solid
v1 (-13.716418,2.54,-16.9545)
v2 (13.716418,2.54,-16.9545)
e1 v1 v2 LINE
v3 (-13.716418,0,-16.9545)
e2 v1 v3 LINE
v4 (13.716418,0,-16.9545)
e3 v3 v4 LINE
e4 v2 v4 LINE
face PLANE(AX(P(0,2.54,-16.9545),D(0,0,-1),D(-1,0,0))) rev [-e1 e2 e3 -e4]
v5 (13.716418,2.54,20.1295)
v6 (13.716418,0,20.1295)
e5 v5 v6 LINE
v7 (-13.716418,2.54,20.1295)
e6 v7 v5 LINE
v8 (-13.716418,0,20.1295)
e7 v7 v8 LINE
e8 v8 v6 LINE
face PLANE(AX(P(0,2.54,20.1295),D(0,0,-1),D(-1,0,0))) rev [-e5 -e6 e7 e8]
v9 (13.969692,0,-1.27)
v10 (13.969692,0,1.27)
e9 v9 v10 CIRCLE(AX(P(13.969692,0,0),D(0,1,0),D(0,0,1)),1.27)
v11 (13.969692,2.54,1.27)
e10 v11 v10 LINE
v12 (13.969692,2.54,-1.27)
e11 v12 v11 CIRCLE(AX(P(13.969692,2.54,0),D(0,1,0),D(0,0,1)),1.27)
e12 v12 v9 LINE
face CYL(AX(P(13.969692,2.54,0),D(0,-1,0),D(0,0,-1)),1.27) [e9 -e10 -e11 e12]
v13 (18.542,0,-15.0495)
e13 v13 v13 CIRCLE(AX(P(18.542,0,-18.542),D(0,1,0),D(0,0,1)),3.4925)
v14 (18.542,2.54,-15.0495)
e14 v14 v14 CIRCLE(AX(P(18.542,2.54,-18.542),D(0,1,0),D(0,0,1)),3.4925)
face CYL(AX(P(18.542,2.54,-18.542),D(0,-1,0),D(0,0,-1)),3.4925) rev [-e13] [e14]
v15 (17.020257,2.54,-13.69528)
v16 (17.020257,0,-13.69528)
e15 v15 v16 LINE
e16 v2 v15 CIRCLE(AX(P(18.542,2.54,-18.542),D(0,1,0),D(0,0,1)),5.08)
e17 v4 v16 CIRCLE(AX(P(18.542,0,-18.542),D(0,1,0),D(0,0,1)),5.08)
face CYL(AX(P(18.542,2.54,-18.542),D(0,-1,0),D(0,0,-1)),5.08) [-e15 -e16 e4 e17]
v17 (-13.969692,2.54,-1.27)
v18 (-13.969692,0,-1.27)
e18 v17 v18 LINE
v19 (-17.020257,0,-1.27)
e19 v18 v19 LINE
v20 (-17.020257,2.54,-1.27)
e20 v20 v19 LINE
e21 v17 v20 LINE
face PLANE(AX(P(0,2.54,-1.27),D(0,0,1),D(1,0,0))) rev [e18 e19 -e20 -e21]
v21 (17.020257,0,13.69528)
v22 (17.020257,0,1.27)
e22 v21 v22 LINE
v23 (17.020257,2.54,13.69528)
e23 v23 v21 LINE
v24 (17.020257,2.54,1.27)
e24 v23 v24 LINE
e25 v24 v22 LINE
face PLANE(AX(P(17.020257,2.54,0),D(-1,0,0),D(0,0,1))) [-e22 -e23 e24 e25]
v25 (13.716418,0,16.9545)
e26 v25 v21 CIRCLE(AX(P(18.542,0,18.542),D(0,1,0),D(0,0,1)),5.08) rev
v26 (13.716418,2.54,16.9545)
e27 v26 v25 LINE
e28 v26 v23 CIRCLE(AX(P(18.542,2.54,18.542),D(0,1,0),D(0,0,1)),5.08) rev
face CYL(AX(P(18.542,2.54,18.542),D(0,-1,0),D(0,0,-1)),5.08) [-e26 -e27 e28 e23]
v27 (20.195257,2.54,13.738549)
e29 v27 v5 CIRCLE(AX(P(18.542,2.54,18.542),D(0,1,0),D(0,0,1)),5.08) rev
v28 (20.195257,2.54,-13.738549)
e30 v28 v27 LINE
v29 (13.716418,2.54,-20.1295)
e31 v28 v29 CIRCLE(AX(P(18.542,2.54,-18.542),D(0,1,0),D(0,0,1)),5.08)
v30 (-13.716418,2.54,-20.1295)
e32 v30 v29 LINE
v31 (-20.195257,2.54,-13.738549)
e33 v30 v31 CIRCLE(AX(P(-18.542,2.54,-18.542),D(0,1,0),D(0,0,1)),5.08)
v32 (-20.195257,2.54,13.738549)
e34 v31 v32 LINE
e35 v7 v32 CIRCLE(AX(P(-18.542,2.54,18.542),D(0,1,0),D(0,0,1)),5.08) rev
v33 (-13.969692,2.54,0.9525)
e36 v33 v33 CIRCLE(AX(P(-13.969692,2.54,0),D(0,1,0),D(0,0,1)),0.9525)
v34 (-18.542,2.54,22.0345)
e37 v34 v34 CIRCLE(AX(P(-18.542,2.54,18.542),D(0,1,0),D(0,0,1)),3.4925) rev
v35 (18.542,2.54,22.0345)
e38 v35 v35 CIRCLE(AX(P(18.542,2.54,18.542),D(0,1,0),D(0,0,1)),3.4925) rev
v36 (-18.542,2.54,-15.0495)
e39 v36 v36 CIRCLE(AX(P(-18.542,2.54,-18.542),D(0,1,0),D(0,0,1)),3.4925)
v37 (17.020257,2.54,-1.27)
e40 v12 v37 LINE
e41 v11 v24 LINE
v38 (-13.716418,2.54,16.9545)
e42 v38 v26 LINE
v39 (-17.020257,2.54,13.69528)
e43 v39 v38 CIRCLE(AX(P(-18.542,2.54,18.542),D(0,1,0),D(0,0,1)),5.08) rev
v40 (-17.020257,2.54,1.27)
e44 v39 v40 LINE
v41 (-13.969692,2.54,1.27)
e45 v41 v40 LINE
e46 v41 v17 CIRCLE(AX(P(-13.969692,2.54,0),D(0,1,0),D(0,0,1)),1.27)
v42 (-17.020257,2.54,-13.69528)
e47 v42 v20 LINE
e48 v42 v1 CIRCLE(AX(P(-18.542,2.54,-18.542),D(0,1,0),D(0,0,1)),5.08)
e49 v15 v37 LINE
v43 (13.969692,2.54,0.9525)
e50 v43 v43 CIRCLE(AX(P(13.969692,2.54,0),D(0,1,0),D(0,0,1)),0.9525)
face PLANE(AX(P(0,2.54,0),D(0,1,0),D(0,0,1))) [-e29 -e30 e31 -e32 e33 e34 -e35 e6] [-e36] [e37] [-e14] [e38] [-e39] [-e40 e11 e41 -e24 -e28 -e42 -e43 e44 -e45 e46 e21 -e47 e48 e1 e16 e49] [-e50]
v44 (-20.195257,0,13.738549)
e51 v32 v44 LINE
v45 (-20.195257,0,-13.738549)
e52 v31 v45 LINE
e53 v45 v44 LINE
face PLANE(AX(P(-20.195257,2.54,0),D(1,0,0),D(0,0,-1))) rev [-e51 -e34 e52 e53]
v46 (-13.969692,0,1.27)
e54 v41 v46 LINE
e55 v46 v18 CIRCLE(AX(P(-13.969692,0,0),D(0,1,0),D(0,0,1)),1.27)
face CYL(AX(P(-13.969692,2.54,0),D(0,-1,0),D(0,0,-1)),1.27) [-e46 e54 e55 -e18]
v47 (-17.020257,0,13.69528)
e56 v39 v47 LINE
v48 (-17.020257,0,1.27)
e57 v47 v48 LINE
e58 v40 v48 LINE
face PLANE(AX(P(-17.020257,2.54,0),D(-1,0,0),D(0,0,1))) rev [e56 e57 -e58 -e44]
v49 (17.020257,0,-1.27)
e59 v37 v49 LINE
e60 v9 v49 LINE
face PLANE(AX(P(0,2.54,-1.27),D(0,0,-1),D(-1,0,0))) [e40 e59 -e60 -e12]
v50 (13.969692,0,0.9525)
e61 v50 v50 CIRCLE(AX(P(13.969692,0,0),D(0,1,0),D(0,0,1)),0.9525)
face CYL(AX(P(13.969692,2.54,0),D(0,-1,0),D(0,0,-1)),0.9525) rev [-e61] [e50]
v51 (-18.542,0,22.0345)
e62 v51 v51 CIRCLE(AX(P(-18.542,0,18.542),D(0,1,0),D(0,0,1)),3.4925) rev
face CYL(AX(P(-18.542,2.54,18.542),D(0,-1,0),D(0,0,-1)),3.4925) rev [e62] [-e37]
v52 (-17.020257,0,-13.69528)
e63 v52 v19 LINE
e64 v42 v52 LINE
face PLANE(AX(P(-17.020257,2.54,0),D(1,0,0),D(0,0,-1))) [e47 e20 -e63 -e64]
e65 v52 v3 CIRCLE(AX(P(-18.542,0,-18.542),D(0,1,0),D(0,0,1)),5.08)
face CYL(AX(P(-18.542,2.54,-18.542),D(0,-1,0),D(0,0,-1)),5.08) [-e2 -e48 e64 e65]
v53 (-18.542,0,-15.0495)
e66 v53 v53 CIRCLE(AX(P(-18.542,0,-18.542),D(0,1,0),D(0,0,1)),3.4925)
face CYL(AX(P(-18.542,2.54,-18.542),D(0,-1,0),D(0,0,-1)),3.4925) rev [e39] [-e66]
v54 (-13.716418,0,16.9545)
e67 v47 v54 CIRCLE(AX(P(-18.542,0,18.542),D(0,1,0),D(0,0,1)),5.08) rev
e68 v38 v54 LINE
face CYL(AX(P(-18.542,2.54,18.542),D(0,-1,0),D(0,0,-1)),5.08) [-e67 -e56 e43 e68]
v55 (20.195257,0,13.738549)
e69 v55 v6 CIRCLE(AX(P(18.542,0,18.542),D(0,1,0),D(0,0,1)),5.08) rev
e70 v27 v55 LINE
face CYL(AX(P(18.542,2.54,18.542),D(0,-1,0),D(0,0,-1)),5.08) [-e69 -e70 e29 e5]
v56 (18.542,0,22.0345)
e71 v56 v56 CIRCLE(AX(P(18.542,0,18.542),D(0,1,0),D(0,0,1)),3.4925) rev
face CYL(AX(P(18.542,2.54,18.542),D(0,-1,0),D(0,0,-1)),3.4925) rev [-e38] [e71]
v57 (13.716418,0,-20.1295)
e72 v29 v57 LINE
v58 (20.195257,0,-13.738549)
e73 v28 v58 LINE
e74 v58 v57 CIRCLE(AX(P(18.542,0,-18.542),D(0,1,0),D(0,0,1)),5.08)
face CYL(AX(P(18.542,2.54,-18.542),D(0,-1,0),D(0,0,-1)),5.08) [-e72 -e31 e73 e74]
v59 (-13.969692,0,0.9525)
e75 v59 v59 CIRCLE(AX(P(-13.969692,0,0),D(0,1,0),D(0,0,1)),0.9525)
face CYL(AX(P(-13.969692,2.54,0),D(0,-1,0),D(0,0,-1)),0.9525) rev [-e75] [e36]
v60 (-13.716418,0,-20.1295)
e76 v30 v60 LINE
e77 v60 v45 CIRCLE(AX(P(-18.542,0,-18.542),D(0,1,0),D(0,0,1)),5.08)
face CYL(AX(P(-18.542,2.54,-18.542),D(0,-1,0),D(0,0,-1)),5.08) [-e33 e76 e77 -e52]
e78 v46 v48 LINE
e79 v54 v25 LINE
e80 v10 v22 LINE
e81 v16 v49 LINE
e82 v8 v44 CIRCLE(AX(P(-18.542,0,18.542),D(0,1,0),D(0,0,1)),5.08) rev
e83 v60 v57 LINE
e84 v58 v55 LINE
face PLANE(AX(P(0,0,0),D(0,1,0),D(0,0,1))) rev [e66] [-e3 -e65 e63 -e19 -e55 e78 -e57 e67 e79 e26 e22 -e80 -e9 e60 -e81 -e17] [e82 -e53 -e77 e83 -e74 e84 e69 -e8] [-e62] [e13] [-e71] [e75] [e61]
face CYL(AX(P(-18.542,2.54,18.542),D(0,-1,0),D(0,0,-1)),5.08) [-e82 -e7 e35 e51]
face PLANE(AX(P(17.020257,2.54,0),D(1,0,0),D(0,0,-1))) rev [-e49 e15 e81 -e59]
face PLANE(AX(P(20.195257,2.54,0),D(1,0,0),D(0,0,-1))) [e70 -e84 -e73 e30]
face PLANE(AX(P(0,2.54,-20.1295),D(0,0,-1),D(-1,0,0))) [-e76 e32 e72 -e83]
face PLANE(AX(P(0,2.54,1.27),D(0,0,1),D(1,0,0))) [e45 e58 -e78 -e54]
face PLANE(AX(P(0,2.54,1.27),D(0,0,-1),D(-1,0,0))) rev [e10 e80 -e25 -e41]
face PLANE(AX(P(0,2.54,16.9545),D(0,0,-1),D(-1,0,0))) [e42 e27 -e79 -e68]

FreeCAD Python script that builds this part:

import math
import FreeCAD as App
import Part
import Sketcher
Q = App.Units.Quantity

doc = App.newDocument("Part")
params = doc.addObject("Spreadsheet::Sheet", "Params")
for row, (alias, value) in enumerate([
    ("sketch1_radius", "0.2 in"),
    ("sketch1_radius2", "0.05 in"),
    ("sketch1_diameter", "0.275 in"),
    ("sketch1_diameter2", "0.075 in"),
    ("pad1_length", "0.1 in"),
], start=1):
    params.set(f"A{row}", alias)
    params.set(f"B{row}", "=" + value)
    params.setAlias(f"B{row}", alias)

body = doc.addObject("PartDesign::Body", "Body")

sketch1 = body.newObject("Sketcher::SketchObject", "Sketch")
sketch1.AttachmentSupport = (doc.getObject("XZ_Plane"), [""])
sketch1.MapMode = "FlatFace"
sketch1.addGeometry(Part.LineSegment(App.Vector(-20.195257, -13.738549, 0), App.Vector(-20.195257, 13.738549, 0)), False)
sketch1.addGeometry(Part.ArcOfCircle(Part.Circle(App.Vector(-18.542, 18.542, 0), App.Vector(0, 0, 1), 5.08), math.radians(18.209957), math.radians(251.007502)), False)
sketch1.addGeometry(Part.LineSegment(App.Vector(-13.716418, 20.1295, 0), App.Vector(13.716418, 20.1295, 0)), False)
sketch1.addGeometry(Part.ArcOfCircle(Part.Circle(App.Vector(18.542, 18.542, 0), App.Vector(0, 0, 1), 5.08), math.radians(-71.007502), math.radians(161.790043)), False)
sketch1.addGeometry(Part.LineSegment(App.Vector(20.195257, 13.738549, 0), App.Vector(20.195257, -13.738549, 0)), False)
sketch1.addGeometry(Part.ArcOfCircle(Part.Circle(App.Vector(18.542, -18.542, 0), App.Vector(0, 0, 1), 5.08), math.radians(-161.790043), math.radians(71.007502)), False)
sketch1.addGeometry(Part.LineSegment(App.Vector(13.716418, -20.1295, 0), App.Vector(-13.716418, -20.1295, 0)), False)
sketch1.addGeometry(Part.ArcOfCircle(Part.Circle(App.Vector(-18.542, -18.542, 0), App.Vector(0, 0, 1), 5.08), math.radians(108.992498), math.radians(341.790043)), False)
sketch1.addGeometry(Part.Circle(App.Vector(-18.542, 18.542, 0), App.Vector(0, 0, 1), 3.4925), False)
sketch1.addGeometry(Part.Circle(App.Vector(18.542, 18.542, 0), App.Vector(0, 0, 1), 3.4925), False)
sketch1.addGeometry(Part.Circle(App.Vector(-13.969692, 0, 0), App.Vector(0, 0, 1), 0.9525), False)
sketch1.addGeometry(Part.Circle(App.Vector(-18.542, -18.542, 0), App.Vector(0, 0, 1), 3.4925), False)
sketch1.addGeometry(Part.LineSegment(App.Vector(-17.020257, -1.27, 0), App.Vector(-17.020257, -13.69528, 0)), False)
sketch1.addGeometry(Part.ArcOfCircle(Part.Circle(App.Vector(-18.542, -18.542, 0), App.Vector(0, 0, 1), 5.08), math.radians(18.209957), math.radians(72.569084)), False)
sketch1.addGeometry(Part.LineSegment(App.Vector(-13.716418, -16.9545, 0), App.Vector(13.716418, -16.9545, 0)), False)
sketch1.addGeometry(Part.ArcOfCircle(Part.Circle(App.Vector(18.542, -18.542, 0), App.Vector(0, 0, 1), 5.08), math.radians(107.430916), math.radians(161.790043)), False)
sketch1.addGeometry(Part.LineSegment(App.Vector(17.020257, -13.69528, 0), App.Vector(17.020257, -1.27, 0)), False)
sketch1.addGeometry(Part.LineSegment(App.Vector(17.020257, -1.27, 0), App.Vector(13.969692, -1.27, 0)), False)
sketch1.addGeometry(Part.ArcOfCircle(Part.Circle(App.Vector(13.969692, 0, 0), App.Vector(0, 0, 1), 1.27), math.radians(90), math.radians(270)), False)
sketch1.addGeometry(Part.LineSegment(App.Vector(13.969692, 1.27, 0), App.Vector(17.020257, 1.27, 0)), False)
sketch1.addGeometry(Part.LineSegment(App.Vector(17.020257, 1.27, 0), App.Vector(17.020257, 13.69528, 0)), False)
sketch1.addGeometry(Part.ArcOfCircle(Part.Circle(App.Vector(18.542, 18.542, 0), App.Vector(0, 0, 1), 5.08), math.radians(-161.790043), math.radians(-107.430916)), False)
sketch1.addGeometry(Part.LineSegment(App.Vector(13.716418, 16.9545, 0), App.Vector(-13.716418, 16.9545, 0)), False)
sketch1.addGeometry(Part.ArcOfCircle(Part.Circle(App.Vector(-18.542, 18.542, 0), App.Vector(0, 0, 1), 5.08), math.radians(-72.569084), math.radians(-18.209957)), False)
sketch1.addGeometry(Part.LineSegment(App.Vector(-17.020257, 13.69528, 0), App.Vector(-17.020257, 1.27, 0)), False)
sketch1.addGeometry(Part.LineSegment(App.Vector(-17.020257, 1.27, 0), App.Vector(-13.969692, 1.27, 0)), False)
sketch1.addGeometry(Part.ArcOfCircle(Part.Circle(App.Vector(-13.969692, 0, 0), App.Vector(0, 0, 1), 1.27), math.radians(-90), math.radians(90)), False)
sketch1.addGeometry(Part.LineSegment(App.Vector(-13.969692, -1.27, 0), App.Vector(-17.020257, -1.27, 0)), False)
sketch1.addGeometry(Part.Circle(App.Vector(13.969692, 0, 0), App.Vector(0, 0, 1), 0.9525), False)
sketch1.addGeometry(Part.Circle(App.Vector(18.542, -18.542, 0), App.Vector(0, 0, 1), 3.4925), False)
sketch1.addConstraint(Sketcher.Constraint("Coincident", 0, 2, 1, 2))
sketch1.addConstraint(Sketcher.Constraint("Coincident", 1, 1, 2, 1))
sketch1.addConstraint(Sketcher.Constraint("Coincident", 2, 2, 3, 2))
sketch1.addConstraint(Sketcher.Constraint("Coincident", 3, 1, 4, 1))
sketch1.addConstraint(Sketcher.Constraint("Coincident", 4, 2, 5, 2))
sketch1.addConstraint(Sketcher.Constraint("Coincident", 5, 1, 6, 1))
sketch1.addConstraint(Sketcher.Constraint("Coincident", 6, 2, 7, 2))
sketch1.addConstraint(Sketcher.Constraint("Coincident", 7, 1, 0, 1))
sketch1.addConstraint(Sketcher.Constraint("Coincident", 12, 2, 13, 2))
sketch1.addConstraint(Sketcher.Constraint("Coincident", 13, 1, 14, 1))
sketch1.addConstraint(Sketcher.Constraint("Coincident", 14, 2, 15, 2))
sketch1.addConstraint(Sketcher.Constraint("Coincident", 15, 1, 16, 1))
sketch1.addConstraint(Sketcher.Constraint("Coincident", 16, 2, 17, 1))
sketch1.addConstraint(Sketcher.Constraint("Tangent", 17, 2, 18, 2))
sketch1.addConstraint(Sketcher.Constraint("Tangent", 18, 1, 19, 1))
sketch1.addConstraint(Sketcher.Constraint("Coincident", 19, 2, 20, 1))
sketch1.addConstraint(Sketcher.Constraint("Coincident", 20, 2, 21, 2))
sketch1.addConstraint(Sketcher.Constraint("Coincident", 21, 1, 22, 1))
sketch1.addConstraint(Sketcher.Constraint("Coincident", 22, 2, 23, 2))
sketch1.addConstraint(Sketcher.Constraint("Coincident", 23, 1, 24, 1))
sketch1.addConstraint(Sketcher.Constraint("Coincident", 24, 2, 25, 1))
sketch1.addConstraint(Sketcher.Constraint("Tangent", 25, 2, 26, 2))
sketch1.addConstraint(Sketcher.Constraint("Tangent", 26, 1, 27, 1))
sketch1.addConstraint(Sketcher.Constraint("Coincident", 27, 2, 12, 1))
sketch1.addConstraint(Sketcher.Constraint("Vertical", 0))
sketch1.addConstraint(Sketcher.Constraint("Horizontal", 2))
sketch1.addConstraint(Sketcher.Constraint("Vertical", 4))
sketch1.addConstraint(Sketcher.Constraint("Horizontal", 6))
sketch1.addConstraint(Sketcher.Constraint("Vertical", 12))
sketch1.addConstraint(Sketcher.Constraint("Horizontal", 14))
sketch1.addConstraint(Sketcher.Constraint("Vertical", 16))
sketch1.addConstraint(Sketcher.Constraint("Horizontal", 17))
sketch1.addConstraint(Sketcher.Constraint("Horizontal", 19))
sketch1.addConstraint(Sketcher.Constraint("Vertical", 20))
sketch1.addConstraint(Sketcher.Constraint("Horizontal", 22))
sketch1.addConstraint(Sketcher.Constraint("Vertical", 24))
sketch1.addConstraint(Sketcher.Constraint("Horizontal", 25))
sketch1.addConstraint(Sketcher.Constraint("Horizontal", 27))
sketch1.addConstraint(Sketcher.Constraint("Coincident", 8, 3, 1, 3))
sketch1.addConstraint(Sketcher.Constraint("Coincident", 9, 3, 3, 3))
sketch1.addConstraint(Sketcher.Constraint("Coincident", 11, 3, 7, 3))
sketch1.addConstraint(Sketcher.Constraint("Coincident", 13, 3, 7, 3))
sketch1.addConstraint(Sketcher.Constraint("Coincident", 15, 3, 5, 3))
sketch1.addConstraint(Sketcher.Constraint("Coincident", 21, 3, 3, 3))
sketch1.addConstraint(Sketcher.Constraint("Coincident", 23, 3, 1, 3))
sketch1.addConstraint(Sketcher.Constraint("Coincident", 26, 3, 10, 3))
sketch1.addConstraint(Sketcher.Constraint("Coincident", 28, 3, 18, 3))
sketch1.addConstraint(Sketcher.Constraint("Coincident", 29, 3, 5, 3))
sketch1.addConstraint(Sketcher.Constraint("Equal", 1, 3))
sketch1.addConstraint(Sketcher.Constraint("Equal", 3, 5))
sketch1.addConstraint(Sketcher.Constraint("Equal", 5, 7))
sketch1.addConstraint(Sketcher.Constraint("Equal", 8, 9))
sketch1.addConstraint(Sketcher.Constraint("Equal", 9, 11))
sketch1.addConstraint(Sketcher.Constraint("Equal", 7, 13))
sketch1.addConstraint(Sketcher.Constraint("Equal", 13, 15))
sketch1.addConstraint(Sketcher.Constraint("Equal", 15, 21))
sketch1.addConstraint(Sketcher.Constraint("Equal", 21, 23))
sketch1.addConstraint(Sketcher.Constraint("Equal", 18, 26))
sketch1.addConstraint(Sketcher.Constraint("Equal", 10, 28))
sketch1.addConstraint(Sketcher.Constraint("Equal", 11, 29))
sketch1.addConstraint(Sketcher.Constraint("Symmetric", 1, 3, 5, 3, -1, 1))
sketch1.addConstraint(Sketcher.Constraint("Symmetric", 3, 3, 7, 3, -1, 1))
sketch1.addConstraint(Sketcher.Constraint("Symmetric", 10, 3, 18, 3, -1, 1))
sketch1.addConstraint(Sketcher.Constraint("Symmetric", 1, 3, 3, 3, -2))
sketch1.addConstraint(Sketcher.Constraint("Symmetric", 19, 2, 24, 2, -2))
sketch1.addConstraint(Sketcher.Constraint("Horizontal", 0, 2, 3, 1))
sketch1.addConstraint(Sketcher.Constraint("Horizontal", 12, 2, 15, 1))
sketch1.addConstraint(Sketcher.Constraint("Vertical", 2, 2, 5, 1))
sketch1.addConstraint(Sketcher.Constraint("Vertical", 6, 2, 13, 1))
sketch1.addConstraint(Sketcher.Constraint("Vertical", 16, 2, 19, 2))
sketch1.addConstraint(Sketcher.Constraint("Vertical", 14, 2, 21, 1))
sketch1.addConstraint(Sketcher.Constraint("Radius", 1, Q("0.2 in")))
sketch1.addConstraint(Sketcher.Constraint("Radius", 18, Q("0.05 in")))
sketch1.addConstraint(Sketcher.Constraint("Diameter", 8, Q("0.275 in")))
sketch1.addConstraint(Sketcher.Constraint("Diameter", 10, Q("0.075 in")))
sketch1.addConstraint(Sketcher.Constraint("DistanceX", 1, 3, -1, 1, Q("0.73 in")))
sketch1.addConstraint(Sketcher.Constraint("DistanceY", -1, 1, 1, 3, Q("0.73 in")))
sketch1.addConstraint(Sketcher.Constraint("DistanceY", 23, 3, 1, 1, Q("0.0625 in")))
sketch1.addConstraint(Sketcher.Constraint("DistanceX", 7, 1, 12, 2, Q("0.125 in")))
sketch1.addConstraint(Sketcher.Constraint("DistanceY", 0, 1, 0, 2, 27.477098))
sketch1.addConstraint(Sketcher.Constraint("DistanceX", 17, 2, 17, 1, 3.050566))
sketch1.setExpression("Constraints[71]", "Params.sketch1_radius")
sketch1.setExpression("Constraints[72]", "Params.sketch1_radius2")
sketch1.setExpression("Constraints[73]", "Params.sketch1_diameter")
sketch1.setExpression("Constraints[74]", "Params.sketch1_diameter2")
pad1 = body.newObject("PartDesign::Pad", "Pad")
pad1.Profile = sketch1
pad1.setExpression("Length", "Params.pad1_length")
pad1.Reversed = True

doc.recompute()
